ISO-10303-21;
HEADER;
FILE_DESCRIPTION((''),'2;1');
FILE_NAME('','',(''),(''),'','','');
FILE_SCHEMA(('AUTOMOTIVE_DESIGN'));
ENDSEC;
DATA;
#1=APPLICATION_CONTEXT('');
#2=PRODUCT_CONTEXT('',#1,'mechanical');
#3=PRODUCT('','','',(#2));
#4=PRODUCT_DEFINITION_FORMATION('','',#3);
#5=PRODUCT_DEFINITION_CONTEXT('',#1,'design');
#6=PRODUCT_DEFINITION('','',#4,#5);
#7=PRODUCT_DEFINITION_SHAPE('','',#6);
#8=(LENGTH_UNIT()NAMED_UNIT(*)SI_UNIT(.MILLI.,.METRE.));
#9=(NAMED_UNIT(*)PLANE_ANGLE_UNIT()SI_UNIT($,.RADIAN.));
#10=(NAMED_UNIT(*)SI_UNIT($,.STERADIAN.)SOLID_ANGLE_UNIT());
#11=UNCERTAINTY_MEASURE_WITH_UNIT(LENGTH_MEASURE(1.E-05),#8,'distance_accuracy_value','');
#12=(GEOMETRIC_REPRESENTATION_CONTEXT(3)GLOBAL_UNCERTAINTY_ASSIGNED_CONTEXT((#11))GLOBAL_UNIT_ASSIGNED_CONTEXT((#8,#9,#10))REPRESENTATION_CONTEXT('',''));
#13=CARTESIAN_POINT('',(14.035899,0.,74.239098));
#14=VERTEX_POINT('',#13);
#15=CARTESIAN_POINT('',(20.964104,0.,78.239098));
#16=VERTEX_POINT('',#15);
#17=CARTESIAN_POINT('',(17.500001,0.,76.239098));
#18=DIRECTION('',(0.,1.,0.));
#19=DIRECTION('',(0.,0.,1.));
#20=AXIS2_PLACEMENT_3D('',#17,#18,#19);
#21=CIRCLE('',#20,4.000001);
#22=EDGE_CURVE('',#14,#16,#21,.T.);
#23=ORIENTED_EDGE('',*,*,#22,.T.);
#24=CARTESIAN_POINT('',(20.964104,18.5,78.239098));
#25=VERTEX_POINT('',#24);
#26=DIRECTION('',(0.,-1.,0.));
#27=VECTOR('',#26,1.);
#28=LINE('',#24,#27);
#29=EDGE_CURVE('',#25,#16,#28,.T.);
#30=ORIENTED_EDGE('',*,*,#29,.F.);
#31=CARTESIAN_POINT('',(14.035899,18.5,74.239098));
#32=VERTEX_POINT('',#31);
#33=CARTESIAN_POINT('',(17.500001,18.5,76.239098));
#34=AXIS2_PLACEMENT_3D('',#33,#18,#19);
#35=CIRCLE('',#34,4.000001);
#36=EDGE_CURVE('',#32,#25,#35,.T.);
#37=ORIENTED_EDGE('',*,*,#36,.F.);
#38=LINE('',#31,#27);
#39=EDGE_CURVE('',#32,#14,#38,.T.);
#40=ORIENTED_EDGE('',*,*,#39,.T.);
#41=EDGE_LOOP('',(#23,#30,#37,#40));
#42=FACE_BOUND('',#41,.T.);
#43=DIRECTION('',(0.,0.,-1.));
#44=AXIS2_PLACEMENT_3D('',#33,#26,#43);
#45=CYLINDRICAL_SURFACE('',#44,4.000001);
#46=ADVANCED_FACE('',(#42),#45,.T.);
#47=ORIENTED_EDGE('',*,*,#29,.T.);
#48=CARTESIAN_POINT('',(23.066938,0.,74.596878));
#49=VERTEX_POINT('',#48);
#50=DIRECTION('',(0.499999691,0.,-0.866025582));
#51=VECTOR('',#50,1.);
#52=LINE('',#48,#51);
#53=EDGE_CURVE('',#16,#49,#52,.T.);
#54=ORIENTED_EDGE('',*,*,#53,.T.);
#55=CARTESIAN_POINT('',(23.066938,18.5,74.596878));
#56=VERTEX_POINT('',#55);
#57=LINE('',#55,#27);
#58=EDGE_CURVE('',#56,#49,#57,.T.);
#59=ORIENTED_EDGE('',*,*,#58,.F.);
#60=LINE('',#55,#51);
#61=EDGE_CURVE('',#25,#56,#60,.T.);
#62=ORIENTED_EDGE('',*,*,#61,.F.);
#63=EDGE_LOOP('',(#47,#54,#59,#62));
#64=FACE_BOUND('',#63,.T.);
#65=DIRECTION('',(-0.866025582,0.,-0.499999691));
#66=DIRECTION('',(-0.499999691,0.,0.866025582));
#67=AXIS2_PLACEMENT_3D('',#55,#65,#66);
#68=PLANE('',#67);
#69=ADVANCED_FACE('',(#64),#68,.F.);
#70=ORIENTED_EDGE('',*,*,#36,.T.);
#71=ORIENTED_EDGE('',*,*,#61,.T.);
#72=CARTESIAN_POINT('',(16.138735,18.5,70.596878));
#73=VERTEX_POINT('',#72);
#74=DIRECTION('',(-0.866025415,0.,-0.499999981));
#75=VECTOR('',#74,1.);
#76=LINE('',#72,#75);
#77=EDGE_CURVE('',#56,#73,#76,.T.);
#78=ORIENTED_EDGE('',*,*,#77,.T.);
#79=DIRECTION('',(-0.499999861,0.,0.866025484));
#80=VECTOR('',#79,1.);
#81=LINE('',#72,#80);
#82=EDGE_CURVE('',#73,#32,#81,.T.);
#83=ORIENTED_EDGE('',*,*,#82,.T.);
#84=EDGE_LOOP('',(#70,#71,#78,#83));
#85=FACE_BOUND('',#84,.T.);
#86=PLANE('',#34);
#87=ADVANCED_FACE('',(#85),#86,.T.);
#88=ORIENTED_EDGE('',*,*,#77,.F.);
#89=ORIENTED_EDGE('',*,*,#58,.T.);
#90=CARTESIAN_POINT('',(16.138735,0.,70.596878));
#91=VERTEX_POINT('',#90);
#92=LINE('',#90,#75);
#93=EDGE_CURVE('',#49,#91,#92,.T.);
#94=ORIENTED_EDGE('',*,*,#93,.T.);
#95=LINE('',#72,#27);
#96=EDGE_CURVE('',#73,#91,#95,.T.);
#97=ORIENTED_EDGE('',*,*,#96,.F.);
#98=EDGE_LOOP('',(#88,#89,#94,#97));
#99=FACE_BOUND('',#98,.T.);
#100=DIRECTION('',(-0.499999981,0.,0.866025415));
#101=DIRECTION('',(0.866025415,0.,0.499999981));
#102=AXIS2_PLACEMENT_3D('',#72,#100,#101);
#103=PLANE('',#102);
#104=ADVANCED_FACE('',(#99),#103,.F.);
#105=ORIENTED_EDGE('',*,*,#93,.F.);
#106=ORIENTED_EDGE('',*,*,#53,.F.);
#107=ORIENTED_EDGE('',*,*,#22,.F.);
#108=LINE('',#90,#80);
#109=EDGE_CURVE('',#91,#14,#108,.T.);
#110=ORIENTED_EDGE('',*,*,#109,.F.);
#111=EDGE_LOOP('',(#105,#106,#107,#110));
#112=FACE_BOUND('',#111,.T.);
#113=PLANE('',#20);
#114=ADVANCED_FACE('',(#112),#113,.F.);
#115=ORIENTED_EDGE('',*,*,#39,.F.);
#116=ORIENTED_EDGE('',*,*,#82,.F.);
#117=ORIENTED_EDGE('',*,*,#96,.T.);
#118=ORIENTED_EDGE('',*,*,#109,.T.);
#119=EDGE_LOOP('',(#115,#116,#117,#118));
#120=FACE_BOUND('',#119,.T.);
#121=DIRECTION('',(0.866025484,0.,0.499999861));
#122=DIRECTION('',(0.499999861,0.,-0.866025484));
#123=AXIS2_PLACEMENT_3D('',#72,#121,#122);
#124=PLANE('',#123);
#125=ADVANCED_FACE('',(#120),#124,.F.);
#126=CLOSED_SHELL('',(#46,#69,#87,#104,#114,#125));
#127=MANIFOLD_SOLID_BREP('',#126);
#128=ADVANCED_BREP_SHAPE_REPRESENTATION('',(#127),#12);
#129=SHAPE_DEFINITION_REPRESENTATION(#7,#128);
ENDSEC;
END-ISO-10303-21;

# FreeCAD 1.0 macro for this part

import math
import FreeCAD as App
import Part
import Sketcher

V = App.Vector
Q = App.Units.Quantity

doc = App.newDocument("Part")
body = doc.addObject("PartDesign::Body", "Body")

sketch1 = body.newObject("Sketcher::SketchObject", "Sketch")
sketch1.AttachmentSupport = (doc.getObject("XZ_Plane"), [""])
sketch1.MapMode = "FlatFace"
sketch1.addGeometry([
    Part.LineSegment(V(16.138735, 70.596878, 0), V(14.035899, 74.239098, 0)),
    Part.ArcOfCircle(Part.Circle(V(17.500001, 76.239098, 0), V(0, 0, 1), 4.000001), math.radians(29.999992), math.radians(209.999999)),
    Part.LineSegment(V(20.964104, 78.239098, 0), V(23.066938, 74.596878, 0)),
    Part.LineSegment(V(23.066938, 74.596878, 0), V(16.138735, 70.596878, 0)),
], False)
sketch1.addConstraint([
    Sketcher.Constraint("Tangent", 0, 2, 1, 2),
    Sketcher.Constraint("Tangent", 1, 1, 2, 1),
    Sketcher.Constraint("Coincident", 2, 2, 3, 1),
    Sketcher.Constraint("Coincident", 3, 2, 0, 1),
    Sketcher.Constraint("Parallel", 0, 2),
    Sketcher.Constraint("Perpendicular", 2, 3),
    Sketcher.Constraint("Radius", 1, 4.000001),
    Sketcher.Constraint("Angle", 0, Q("119.999991 deg")),
    Sketcher.Constraint("DistanceX", -1, 1, 1, 3, 17.500001),
    Sketcher.Constraint("DistanceX", -1, 1, 2, 2, 23.066938),
    Sketcher.Constraint("DistanceY", -1, 1, 2, 2, 74.596878),
])
pad1 = body.newObject("PartDesign::Pad", "Pad")
pad1.Profile = sketch1
pad1.Length = 18.5
pad1.Reversed = True

doc.recompute()
